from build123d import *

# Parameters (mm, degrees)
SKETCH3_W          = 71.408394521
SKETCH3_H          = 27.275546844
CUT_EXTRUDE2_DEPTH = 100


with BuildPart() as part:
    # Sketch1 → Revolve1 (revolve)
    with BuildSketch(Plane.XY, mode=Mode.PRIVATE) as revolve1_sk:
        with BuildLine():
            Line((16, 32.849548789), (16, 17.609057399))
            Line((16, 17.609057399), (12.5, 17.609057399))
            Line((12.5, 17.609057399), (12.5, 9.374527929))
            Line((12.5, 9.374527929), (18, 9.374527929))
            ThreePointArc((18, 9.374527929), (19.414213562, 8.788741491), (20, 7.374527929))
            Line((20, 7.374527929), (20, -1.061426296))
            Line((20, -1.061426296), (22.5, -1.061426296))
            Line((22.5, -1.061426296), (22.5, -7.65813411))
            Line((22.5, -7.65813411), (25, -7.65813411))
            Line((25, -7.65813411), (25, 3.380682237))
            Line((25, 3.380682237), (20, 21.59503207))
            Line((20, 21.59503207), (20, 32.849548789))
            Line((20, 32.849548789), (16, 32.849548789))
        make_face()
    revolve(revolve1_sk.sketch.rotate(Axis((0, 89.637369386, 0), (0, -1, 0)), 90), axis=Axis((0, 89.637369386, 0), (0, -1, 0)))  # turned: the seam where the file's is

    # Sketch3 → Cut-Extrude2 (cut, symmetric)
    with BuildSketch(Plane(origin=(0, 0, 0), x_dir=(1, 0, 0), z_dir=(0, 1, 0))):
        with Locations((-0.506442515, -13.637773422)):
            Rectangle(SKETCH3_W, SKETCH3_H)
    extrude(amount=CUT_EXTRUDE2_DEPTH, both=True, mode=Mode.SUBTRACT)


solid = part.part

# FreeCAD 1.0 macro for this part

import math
import FreeCAD as App
import Part
import Sketcher

V = App.Vector
Q = App.Units.Quantity

doc = App.newDocument("Part")
body = doc.addObject("PartDesign::Body", "Body")

# Sketch on XY plane
sketch1 = body.newObject("Sketcher::SketchObject", "Sketch")
sketch1.AttachmentSupport = (doc.getObject("XY_Plane"), [""])
sketch1.MapMode = "FlatFace"
sketch1.addGeometry([
    Part.LineSegment(V(16, 32.849549, 0), V(16, 17.609057, 0)),  # 0
    Part.LineSegment(V(16, 17.609057, 0), V(12.5, 17.609057, 0)),  # 1
    Part.LineSegment(V(12.5, 17.609057, 0), V(12.5, 9.374528, 0)),  # 2
    Part.LineSegment(V(12.5, 9.374528, 0), V(18, 9.374528, 0)),  # 3
    Part.ArcOfCircle(Part.Circle(V(18, 7.374528, 0), V(0, 0, 1), 2), math.radians(0), math.radians(90)),  # 4
    Part.LineSegment(V(20, 7.374528, 0), V(20, -1.061426, 0)),  # 5
    Part.LineSegment(V(20, -1.061426, 0), V(22.5, -1.061426, 0)),  # 6
    Part.LineSegment(V(22.5, -1.061426, 0), V(22.5, -7.658134, 0)),  # 7
    Part.LineSegment(V(22.5, -7.658134, 0), V(25, -7.658134, 0)),  # 8
    Part.LineSegment(V(25, -7.658134, 0), V(25, 3.380682, 0)),  # 9
    Part.LineSegment(V(25, 3.380682, 0), V(20, 21.595032, 0)),  # 10
    Part.LineSegment(V(20, 21.595032, 0), V(20, 32.849549, 0)),  # 11
    Part.LineSegment(V(20, 32.849549, 0), V(16, 32.849549, 0)),  # 12
], False)
sketch1.addConstraint([
    Sketcher.Constraint("Coincident", 0, 2, 1, 1),
    Sketcher.Constraint("Coincident", 1, 2, 2, 1),
    Sketcher.Constraint("Coincident", 2, 2, 3, 1),
    Sketcher.Constraint("Tangent", 3, 2, 4, 2),
    Sketcher.Constraint("Tangent", 4, 1, 5, 1),
    Sketcher.Constraint("Coincident", 5, 2, 6, 1),
    Sketcher.Constraint("Coincident", 6, 2, 7, 1),
    Sketcher.Constraint("Coincident", 7, 2, 8, 1),
    Sketcher.Constraint("Coincident", 8, 2, 9, 1),
    Sketcher.Constraint("Coincident", 9, 2, 10, 1),
    Sketcher.Constraint("Coincident", 10, 2, 11, 1),
    Sketcher.Constraint("Coincident", 11, 2, 12, 1),
    Sketcher.Constraint("Coincident", 12, 2, 0, 1),
    Sketcher.Constraint("Vertical", 0),
    Sketcher.Constraint("Horizontal", 1),
    Sketcher.Constraint("Vertical", 2),
    Sketcher.Constraint("Horizontal", 3),
    Sketcher.Constraint("Vertical", 5),
    Sketcher.Constraint("Horizontal", 6),
    Sketcher.Constraint("Vertical", 7),
    Sketcher.Constraint("Horizontal", 8),
    Sketcher.Constraint("Vertical", 9),
    Sketcher.Constraint("Vertical", 11),
    Sketcher.Constraint("Horizontal", 12),
    Sketcher.Constraint("Vertical", 5, 2, 10, 2),
    Sketcher.Constraint("Equal", 6, 8),
    Sketcher.Constraint("Radius", 4, Q("2 mm")),
    Sketcher.Constraint("DistanceX", 12, 2, 12, 1, Q("4 mm")),
    Sketcher.Constraint("DistanceX", 1, 2, 1, 1, Q("3.5 mm")),
    Sketcher.Constraint("DistanceX", 6, 1, 6, 2, Q("2.5 mm")),
    Sketcher.Constraint("DistanceX", -1, 1, 4, 3, Q("18 mm")),
    Sketcher.Constraint("DistanceY", 0, 2, 0, 1, Q("15.240491 mm")),
    Sketcher.Constraint("DistanceY", 2, 2, 2, 1, Q("8.234529 mm")),
    Sketcher.Constraint("Distance", 10, Q("18.888159 mm")),
    Sketcher.Constraint("DistanceY", 5, 2, 5, 1, Q("8.435954 mm")),
    Sketcher.Constraint("DistanceY", 7, 2, 7, 1, Q("6.596708 mm")),
    Sketcher.Constraint("DistanceY", 9, 1, 9, 2, Q("11.038816 mm")),
    Sketcher.Constraint("DistanceY", -1, 1, 11, 2, Q("32.849549 mm")),
])
revolution = body.newObject("PartDesign::Revolution", "Revolution")
revolution.Profile = sketch1
revolution.ReferenceAxis = (sketch1, ["V_Axis"])
revolution.Angle = 360

# Sketch on XZ plane
sketch2 = body.newObject("Sketcher::SketchObject", "Sketch001")
sketch2.AttachmentSupport = (doc.getObject("XZ_Plane"), [""])
sketch2.MapMode = "FlatFace"
sketch2.addGeometry([
    Part.LineSegment(V(-36.21064, 0, 0), V(-36.21064, 27.275547, 0)),
    Part.LineSegment(V(-36.21064, 27.275547, 0), V(35.197755, 27.275547, 0)),
    Part.LineSegment(V(35.197755, 27.275547, 0), V(35.197755, 0, 0)),
    Part.LineSegment(V(35.197755, 0, 0), V(-36.21064, 0, 0)),
], False)
sketch2.addConstraint([
    Sketcher.Constraint("Coincident", 0, 2, 1, 1),
    Sketcher.Constraint("Coincident", 1, 2, 2, 1),
    Sketcher.Constraint("Coincident", 2, 2, 3, 1),
    Sketcher.Constraint("Coincident", 3, 2, 0, 1),
    Sketcher.Constraint("Vertical", 0),
    Sketcher.Constraint("Horizontal", 1),
    Sketcher.Constraint("Vertical", 2),
    Sketcher.Constraint("Horizontal", 3),
    Sketcher.Constraint("PointOnObject", 2, 2, -1),
    Sketcher.Constraint("DistanceX", 1, 1, 1, 2, Q("71.408395 mm")),
    Sketcher.Constraint("DistanceY", 0, 1, 0, 2, Q("27.275547 mm")),
    Sketcher.Constraint("DistanceX", 0, 2, -1, 1, Q("36.21064 mm")),
])
pocket1 = body.newObject("PartDesign::Pocket", "Pocket")
pocket1.Profile = sketch2
pocket1.Length = 200
pocket1.Midplane = True

doc.recompute()
